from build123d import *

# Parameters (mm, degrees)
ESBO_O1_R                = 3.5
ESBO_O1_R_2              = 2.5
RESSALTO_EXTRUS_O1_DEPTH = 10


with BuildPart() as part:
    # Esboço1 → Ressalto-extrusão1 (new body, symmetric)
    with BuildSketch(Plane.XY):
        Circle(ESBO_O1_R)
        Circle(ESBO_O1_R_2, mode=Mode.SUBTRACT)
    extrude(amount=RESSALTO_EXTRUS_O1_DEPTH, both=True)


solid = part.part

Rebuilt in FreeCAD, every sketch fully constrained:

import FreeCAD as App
import Part
import Sketcher
from FreeCAD import Vector

doc = App.newDocument("Part")
body = doc.addObject("PartDesign::Body", "Body")

# Sketch on XY plane
sketch1 = doc.addObject("Sketcher::SketchObject", "Sketch")
body.addObject(sketch1)
sketch1.AttachmentSupport = (doc.XY_Plane, [""])
sketch1.MapMode = "FlatFace"
sketch1.addGeometry([
    Part.Circle(Vector(0, 0, 0), Vector(0, 0, 1), 3.5),
    Part.Circle(Vector(0, 0, 0), Vector(0, 0, 1), 2.5),
], False)
sketch1.addConstraint([
    Sketcher.Constraint("Coincident", 0, 3, -1, 1),
    Sketcher.Constraint("Coincident", 1, 3, -1, 1),
    Sketcher.Constraint("Diameter", 0, 7.0),
    Sketcher.Constraint("Diameter", 1, 5.0),
])
pad1 = doc.addObject("PartDesign::Pad", "Pad")
body.addObject(pad1)
pad1.Profile = sketch1
pad1.Length = 20
pad1.Midplane = True

doc.recompute()
